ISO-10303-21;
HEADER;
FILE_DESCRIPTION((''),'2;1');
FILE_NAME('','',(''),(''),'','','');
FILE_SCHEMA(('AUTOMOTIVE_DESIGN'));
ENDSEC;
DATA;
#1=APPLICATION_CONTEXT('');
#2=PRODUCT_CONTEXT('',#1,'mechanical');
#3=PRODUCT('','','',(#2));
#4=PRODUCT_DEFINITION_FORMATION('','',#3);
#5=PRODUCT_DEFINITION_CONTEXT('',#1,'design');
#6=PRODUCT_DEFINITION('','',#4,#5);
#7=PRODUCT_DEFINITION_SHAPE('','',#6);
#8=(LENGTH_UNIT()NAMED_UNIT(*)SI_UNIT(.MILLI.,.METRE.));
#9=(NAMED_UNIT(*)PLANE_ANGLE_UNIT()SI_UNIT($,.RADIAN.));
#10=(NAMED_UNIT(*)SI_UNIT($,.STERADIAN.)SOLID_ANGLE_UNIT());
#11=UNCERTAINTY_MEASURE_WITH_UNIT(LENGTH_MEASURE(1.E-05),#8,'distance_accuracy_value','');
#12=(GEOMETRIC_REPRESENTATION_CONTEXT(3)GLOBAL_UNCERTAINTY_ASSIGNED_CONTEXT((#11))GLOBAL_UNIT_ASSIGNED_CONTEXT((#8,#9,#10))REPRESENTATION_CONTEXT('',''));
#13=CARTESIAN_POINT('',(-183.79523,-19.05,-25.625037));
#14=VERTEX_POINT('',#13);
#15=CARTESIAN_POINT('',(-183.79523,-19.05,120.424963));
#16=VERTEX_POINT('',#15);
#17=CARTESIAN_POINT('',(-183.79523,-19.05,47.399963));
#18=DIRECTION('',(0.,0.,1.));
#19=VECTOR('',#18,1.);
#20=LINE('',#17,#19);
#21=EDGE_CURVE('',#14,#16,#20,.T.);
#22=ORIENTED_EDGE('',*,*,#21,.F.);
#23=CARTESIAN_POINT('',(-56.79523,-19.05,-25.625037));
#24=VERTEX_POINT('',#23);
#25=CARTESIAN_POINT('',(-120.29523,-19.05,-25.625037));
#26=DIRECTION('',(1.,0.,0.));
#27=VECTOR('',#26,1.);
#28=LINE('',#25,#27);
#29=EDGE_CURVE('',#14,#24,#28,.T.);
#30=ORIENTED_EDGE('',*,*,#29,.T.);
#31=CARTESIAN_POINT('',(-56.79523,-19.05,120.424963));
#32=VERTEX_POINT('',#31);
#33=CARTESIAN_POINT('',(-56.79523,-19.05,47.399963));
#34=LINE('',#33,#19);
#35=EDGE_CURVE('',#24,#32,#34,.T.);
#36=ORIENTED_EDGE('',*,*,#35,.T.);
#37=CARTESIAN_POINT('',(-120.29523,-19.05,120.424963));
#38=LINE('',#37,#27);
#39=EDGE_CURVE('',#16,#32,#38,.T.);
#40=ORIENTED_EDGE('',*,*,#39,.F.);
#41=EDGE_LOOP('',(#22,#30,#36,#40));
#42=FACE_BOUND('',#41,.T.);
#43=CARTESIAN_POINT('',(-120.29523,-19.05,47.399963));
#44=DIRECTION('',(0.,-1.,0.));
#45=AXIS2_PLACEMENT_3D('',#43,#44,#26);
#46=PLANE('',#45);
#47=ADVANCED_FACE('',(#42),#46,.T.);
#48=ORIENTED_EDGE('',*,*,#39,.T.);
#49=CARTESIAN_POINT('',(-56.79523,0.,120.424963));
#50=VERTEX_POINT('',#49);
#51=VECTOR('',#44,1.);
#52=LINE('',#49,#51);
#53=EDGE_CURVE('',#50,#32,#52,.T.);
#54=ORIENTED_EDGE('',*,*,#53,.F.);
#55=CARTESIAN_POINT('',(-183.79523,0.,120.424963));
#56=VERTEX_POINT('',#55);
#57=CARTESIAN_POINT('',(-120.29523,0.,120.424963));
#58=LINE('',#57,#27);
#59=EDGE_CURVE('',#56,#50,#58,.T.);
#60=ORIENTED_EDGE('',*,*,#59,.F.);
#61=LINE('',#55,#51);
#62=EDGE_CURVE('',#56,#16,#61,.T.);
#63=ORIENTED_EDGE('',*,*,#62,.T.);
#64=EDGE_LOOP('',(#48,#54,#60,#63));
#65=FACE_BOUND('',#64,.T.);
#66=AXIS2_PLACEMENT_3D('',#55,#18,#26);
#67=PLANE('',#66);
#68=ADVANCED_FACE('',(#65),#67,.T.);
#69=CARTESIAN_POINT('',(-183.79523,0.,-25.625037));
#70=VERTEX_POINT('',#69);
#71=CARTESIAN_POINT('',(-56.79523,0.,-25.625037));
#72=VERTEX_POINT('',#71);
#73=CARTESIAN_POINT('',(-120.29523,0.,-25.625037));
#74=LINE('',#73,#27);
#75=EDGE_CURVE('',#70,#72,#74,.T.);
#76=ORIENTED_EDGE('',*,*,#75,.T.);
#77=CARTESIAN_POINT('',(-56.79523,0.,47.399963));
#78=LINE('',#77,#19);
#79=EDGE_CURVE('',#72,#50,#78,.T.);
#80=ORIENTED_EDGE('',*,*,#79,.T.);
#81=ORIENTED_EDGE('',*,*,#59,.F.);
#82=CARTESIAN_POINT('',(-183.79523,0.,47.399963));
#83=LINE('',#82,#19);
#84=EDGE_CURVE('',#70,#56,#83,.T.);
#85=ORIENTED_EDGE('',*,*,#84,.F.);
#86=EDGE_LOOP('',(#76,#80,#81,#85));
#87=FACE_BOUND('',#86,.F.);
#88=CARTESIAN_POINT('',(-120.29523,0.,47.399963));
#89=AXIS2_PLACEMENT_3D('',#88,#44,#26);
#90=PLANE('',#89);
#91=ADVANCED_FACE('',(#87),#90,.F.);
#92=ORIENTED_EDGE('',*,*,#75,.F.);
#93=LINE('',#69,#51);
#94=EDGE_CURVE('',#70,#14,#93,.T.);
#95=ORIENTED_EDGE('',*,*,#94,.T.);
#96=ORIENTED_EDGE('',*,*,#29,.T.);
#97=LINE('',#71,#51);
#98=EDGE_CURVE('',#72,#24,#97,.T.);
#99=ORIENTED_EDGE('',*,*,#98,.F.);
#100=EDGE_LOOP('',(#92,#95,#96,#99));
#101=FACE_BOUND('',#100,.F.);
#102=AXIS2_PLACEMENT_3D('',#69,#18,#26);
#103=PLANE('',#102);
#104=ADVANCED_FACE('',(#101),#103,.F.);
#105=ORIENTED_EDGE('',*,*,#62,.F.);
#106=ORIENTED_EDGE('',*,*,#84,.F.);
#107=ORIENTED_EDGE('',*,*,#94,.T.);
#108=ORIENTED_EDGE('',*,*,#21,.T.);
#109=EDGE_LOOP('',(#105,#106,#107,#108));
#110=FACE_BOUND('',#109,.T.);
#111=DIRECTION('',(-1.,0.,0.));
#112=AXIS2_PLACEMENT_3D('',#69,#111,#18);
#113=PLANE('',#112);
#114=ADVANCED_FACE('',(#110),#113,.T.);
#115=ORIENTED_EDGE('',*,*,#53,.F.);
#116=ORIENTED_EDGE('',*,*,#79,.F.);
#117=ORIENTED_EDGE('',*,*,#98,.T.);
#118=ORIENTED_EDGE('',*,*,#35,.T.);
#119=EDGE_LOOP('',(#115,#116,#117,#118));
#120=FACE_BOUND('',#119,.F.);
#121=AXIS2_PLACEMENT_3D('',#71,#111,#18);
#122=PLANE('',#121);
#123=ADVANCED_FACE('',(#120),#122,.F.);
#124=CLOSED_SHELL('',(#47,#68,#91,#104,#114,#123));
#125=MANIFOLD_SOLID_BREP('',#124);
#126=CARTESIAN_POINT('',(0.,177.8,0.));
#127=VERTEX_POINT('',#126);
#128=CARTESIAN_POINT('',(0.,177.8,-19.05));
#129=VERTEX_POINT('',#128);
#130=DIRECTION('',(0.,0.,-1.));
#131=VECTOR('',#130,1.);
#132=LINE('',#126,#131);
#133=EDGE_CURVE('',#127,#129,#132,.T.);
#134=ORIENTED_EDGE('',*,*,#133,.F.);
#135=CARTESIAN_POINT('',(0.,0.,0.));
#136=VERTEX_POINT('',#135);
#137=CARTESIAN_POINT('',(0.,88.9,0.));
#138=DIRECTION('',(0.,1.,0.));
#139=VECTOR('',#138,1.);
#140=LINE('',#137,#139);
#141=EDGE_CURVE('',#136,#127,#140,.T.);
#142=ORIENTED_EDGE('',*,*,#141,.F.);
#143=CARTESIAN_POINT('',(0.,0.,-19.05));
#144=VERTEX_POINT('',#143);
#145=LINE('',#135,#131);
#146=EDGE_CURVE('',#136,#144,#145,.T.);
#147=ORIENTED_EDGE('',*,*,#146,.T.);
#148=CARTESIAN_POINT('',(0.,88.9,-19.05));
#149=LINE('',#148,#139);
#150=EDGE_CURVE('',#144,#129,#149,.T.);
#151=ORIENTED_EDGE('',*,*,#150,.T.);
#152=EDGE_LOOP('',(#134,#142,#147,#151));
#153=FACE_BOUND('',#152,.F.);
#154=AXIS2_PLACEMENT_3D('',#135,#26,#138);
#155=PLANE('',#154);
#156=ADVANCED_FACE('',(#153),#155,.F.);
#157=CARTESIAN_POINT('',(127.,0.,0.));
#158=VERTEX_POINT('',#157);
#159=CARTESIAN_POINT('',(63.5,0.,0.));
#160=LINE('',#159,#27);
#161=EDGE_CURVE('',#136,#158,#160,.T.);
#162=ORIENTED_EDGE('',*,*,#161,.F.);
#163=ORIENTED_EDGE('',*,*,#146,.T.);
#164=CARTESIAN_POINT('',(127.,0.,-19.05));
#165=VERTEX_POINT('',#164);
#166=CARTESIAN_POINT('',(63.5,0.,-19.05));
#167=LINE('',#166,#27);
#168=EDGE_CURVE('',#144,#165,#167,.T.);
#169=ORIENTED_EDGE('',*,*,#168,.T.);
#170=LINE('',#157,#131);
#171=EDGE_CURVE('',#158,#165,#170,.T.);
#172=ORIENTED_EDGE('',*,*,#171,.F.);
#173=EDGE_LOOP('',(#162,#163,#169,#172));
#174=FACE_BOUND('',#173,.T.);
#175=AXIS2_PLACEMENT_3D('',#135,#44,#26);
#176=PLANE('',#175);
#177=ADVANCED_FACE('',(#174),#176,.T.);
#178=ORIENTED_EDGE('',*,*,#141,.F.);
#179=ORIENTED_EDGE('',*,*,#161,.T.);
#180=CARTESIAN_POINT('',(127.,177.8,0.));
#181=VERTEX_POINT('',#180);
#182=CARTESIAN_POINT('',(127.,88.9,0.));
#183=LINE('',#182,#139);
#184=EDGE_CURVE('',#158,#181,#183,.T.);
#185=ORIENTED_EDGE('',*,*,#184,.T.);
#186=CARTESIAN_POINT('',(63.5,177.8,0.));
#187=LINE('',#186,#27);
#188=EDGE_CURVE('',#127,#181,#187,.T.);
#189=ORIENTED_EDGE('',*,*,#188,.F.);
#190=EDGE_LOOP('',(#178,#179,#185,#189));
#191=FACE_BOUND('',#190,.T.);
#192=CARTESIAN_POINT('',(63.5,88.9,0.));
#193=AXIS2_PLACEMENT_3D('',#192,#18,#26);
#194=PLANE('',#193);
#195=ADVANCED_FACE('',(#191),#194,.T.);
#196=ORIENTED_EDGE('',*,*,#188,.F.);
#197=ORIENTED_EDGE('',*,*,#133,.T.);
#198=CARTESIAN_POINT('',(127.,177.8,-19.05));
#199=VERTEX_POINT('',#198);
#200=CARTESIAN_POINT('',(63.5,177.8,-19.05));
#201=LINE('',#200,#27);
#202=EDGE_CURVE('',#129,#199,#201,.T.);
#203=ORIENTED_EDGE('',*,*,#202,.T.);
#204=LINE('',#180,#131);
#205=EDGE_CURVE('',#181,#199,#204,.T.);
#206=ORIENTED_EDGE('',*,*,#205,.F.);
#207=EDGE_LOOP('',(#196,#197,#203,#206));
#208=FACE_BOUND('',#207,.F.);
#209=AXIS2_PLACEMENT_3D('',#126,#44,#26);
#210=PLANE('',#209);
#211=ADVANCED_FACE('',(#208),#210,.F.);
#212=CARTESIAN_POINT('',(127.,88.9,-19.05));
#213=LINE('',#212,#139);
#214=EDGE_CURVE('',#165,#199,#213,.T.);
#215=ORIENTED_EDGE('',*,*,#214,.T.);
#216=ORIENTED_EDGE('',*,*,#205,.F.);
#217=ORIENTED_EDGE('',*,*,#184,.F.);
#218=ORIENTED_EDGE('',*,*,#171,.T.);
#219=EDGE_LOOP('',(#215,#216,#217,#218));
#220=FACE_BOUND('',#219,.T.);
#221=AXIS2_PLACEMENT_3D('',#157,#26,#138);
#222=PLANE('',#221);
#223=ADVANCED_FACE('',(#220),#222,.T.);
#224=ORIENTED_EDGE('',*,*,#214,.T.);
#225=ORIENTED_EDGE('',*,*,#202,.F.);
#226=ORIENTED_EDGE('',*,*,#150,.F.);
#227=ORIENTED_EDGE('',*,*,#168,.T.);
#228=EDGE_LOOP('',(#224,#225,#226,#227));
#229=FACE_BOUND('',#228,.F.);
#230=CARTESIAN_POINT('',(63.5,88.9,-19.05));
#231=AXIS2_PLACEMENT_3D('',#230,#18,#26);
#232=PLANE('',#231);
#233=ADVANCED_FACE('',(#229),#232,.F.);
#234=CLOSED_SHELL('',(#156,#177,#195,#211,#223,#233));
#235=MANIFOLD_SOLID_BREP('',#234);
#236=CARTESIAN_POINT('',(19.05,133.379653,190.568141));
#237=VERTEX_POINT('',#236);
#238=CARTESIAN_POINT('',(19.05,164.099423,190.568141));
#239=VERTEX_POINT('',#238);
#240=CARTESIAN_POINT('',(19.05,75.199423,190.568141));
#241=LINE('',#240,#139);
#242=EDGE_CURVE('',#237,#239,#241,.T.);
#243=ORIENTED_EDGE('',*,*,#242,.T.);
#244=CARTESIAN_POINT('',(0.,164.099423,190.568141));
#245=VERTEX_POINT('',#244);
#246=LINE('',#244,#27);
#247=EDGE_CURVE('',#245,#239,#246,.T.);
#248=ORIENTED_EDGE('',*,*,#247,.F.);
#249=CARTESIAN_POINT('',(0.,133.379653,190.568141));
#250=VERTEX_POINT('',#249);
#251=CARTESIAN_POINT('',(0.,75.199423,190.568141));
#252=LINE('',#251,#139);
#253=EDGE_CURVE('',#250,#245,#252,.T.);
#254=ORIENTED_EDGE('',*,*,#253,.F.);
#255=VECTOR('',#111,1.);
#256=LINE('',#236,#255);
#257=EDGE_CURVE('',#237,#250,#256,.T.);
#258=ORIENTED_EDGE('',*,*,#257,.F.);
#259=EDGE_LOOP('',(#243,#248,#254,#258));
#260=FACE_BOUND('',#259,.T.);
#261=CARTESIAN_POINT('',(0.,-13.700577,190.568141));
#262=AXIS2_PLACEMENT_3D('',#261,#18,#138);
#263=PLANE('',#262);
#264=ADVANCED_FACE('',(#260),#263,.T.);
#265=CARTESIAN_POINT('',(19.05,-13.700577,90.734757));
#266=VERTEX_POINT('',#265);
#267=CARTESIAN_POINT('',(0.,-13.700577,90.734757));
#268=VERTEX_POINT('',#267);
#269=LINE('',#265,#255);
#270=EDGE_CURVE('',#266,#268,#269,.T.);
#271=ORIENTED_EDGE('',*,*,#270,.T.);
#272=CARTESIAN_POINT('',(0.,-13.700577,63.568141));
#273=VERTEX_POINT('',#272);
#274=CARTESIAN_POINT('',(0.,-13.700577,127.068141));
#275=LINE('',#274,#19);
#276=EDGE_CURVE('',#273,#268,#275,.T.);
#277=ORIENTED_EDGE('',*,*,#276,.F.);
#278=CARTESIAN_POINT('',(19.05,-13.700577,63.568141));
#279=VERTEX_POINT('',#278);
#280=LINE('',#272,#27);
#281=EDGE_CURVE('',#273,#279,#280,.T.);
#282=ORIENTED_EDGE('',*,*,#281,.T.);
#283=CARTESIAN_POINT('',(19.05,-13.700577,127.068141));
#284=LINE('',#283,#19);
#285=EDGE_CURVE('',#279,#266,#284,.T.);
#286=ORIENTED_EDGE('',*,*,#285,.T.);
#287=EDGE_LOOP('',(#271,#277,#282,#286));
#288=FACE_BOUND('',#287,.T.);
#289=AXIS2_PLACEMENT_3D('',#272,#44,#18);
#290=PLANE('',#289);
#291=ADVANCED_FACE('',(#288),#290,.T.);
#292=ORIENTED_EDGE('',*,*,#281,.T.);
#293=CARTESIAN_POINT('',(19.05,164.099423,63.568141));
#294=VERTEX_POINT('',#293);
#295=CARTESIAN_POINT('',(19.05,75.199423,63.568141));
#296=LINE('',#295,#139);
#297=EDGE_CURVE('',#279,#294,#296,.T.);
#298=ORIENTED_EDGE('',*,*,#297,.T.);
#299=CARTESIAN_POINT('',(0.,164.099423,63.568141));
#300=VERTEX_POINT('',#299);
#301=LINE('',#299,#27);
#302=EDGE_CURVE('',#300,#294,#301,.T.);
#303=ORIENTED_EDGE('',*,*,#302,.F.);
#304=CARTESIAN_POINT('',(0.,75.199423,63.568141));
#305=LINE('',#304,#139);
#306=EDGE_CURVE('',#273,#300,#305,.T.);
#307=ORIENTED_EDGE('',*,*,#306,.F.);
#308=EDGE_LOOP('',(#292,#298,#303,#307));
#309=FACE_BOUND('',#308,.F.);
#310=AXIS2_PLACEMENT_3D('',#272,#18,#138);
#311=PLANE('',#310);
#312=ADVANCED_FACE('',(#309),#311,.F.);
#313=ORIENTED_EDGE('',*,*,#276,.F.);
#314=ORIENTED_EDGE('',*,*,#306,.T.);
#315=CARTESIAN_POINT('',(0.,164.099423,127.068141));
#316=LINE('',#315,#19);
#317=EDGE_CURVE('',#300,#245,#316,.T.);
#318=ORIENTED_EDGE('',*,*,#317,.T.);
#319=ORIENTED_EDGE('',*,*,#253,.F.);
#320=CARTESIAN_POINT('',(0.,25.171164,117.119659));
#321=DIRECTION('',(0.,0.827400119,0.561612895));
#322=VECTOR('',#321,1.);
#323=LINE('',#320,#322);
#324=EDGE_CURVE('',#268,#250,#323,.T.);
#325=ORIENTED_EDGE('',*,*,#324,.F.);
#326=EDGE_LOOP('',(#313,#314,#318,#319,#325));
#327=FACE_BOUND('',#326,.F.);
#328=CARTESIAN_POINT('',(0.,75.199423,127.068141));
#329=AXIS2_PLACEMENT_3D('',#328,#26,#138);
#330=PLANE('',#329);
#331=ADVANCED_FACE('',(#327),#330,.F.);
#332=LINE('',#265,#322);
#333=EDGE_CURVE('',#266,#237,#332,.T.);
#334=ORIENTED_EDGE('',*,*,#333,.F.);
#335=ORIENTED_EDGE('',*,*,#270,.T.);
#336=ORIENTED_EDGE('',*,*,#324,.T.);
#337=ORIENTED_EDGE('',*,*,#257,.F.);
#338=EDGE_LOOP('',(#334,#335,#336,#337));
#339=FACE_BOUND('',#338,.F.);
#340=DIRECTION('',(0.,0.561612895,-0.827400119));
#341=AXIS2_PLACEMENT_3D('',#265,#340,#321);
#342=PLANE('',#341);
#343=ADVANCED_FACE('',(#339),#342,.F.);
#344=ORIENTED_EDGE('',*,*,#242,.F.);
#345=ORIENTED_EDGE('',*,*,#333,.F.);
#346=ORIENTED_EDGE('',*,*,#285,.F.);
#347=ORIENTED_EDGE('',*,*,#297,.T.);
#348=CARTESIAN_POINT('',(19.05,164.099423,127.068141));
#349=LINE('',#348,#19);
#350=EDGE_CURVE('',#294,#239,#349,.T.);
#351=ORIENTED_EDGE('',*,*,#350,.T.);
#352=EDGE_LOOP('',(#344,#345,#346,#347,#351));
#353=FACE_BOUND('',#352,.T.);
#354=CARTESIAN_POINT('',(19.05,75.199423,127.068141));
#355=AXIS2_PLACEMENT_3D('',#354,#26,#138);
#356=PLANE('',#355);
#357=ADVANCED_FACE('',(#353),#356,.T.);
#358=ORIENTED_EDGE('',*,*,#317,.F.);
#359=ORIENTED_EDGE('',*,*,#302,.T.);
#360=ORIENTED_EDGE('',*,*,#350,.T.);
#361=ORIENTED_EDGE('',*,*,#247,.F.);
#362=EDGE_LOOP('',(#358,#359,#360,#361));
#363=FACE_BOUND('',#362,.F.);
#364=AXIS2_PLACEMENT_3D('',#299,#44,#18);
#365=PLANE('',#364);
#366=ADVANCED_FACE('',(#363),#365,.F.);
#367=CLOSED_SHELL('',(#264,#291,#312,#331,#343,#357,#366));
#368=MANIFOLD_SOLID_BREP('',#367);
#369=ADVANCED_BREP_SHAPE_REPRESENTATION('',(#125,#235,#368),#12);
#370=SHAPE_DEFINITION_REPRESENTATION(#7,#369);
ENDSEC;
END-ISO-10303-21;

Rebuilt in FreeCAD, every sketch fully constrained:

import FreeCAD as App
import Part
import Sketcher
from FreeCAD import Vector
Q = App.Units.Quantity


def add_polygon(sketch, points):
    """Adds a closed chain of lines whose ends are joined by coincident constraints."""
    first, n = sketch.GeometryCount, len(points)
    for a, b in zip(points, points[1:] + points[:1]):
        sketch.addGeometry(Part.LineSegment(App.Vector(*a, 0), App.Vector(*b, 0)), False)
    for i in range(n):
        sketch.addConstraint(Sketcher.Constraint("Coincident", first + i, 2, first + (i + 1) % n, 1))

doc = App.newDocument("Part")
params = doc.addObject("Spreadsheet::Sheet", "Params")
for row, (alias, value) in enumerate([
    ("sketch1_width", "5 in"),
    ("sketch1_height", "7 in"),
    ("pad1_length", "0.75 in"),
    ("sketch2_width", "7 in"),
    ("sketch2_height", "5 in"),
    ("pad2_length", "0.75 in"),
    ("pocket1_length", "1 in"),
    ("pocket2_length", "1 in"),
    ("sketch5_width", "5 in"),
    ("sketch5_height", "5.75 in"),
    ("pad3_length", "0.75 in"),
], start=1):
    params.set(f"A{row}", alias)
    params.set(f"B{row}", "=" + value)
    params.setAlias(f"B{row}", alias)

body = doc.addObject("PartDesign::Body", "Body")

# Sketch on XY plane
sketch1 = body.newObject("Sketcher::SketchObject", "Sketch")
sketch1.AttachmentSupport = (doc.getObject("XY_Plane"), [""])
sketch1.MapMode = "FlatFace"
add_polygon(sketch1, [(0, 178), (0, 0), (127, 0), (127, 178)])  # lines 0-3
sketch1.addConstraint([
    Sketcher.Constraint("Vertical", 0),
    Sketcher.Constraint("Horizontal", 1),
    Sketcher.Constraint("Vertical", 2),
    Sketcher.Constraint("Horizontal", 3),
    Sketcher.Constraint("Coincident", 0, 2, -1, 1),
    Sketcher.Constraint("DistanceX", 1, 1, 1, 2, Q("5 in")),
    Sketcher.Constraint("DistanceY", 0, 2, 0, 1, Q("7 in")),
])
sketch1.setExpression("Constraints[9]", "Params.sketch1_width")
sketch1.setExpression("Constraints[10]", "Params.sketch1_height")
pad1 = body.newObject("PartDesign::Pad", "Pad")
pad1.Profile = sketch1
pad1.setExpression("Length", "Params.pad1_length")
pad1.Reversed = True
body2 = doc.addObject("PartDesign::Body", "Body001")

# Sketch on YZ plane
sketch2 = body2.newObject("Sketcher::SketchObject", "Sketch001")
sketch2.AttachmentSupport = (doc.getObject("YZ_Plane001"), [""])
sketch2.MapMode = "FlatFace"
add_polygon(sketch2, [(-14, 191), (-14, 64), (164, 64), (164, 191)])  # lines 0-3
sketch2.addConstraint([
    Sketcher.Constraint("Vertical", 0),
    Sketcher.Constraint("Horizontal", 1),
    Sketcher.Constraint("Vertical", 2),
    Sketcher.Constraint("Horizontal", 3),
    Sketcher.Constraint("DistanceX", 1, 1, 1, 2, Q("7 in")),
    Sketcher.Constraint("DistanceY", 0, 2, 0, 1, Q("5 in")),
    Sketcher.Constraint("DistanceY", -1, 1, 0, 2, 63.568141),
    Sketcher.Constraint("DistanceX", 0, 2, -1, 1, 13.700577),
])
sketch2.setExpression("Constraints[8]", "Params.sketch2_width")
sketch2.setExpression("Constraints[9]", "Params.sketch2_height")
pad2 = body2.newObject("PartDesign::Pad", "Pad001")
pad2.Profile = sketch2
pad2.setExpression("Length", "Params.pad2_length")

# Sketch on YZ plane
sketch3 = body2.newObject("Sketcher::SketchObject", "Sketch002")
sketch3.AttachmentSupport = (doc.getObject("YZ_Plane001"), [""])
sketch3.MapMode = "FlatFace"
sketch3.AttachmentOffset = App.Placement(Vector(0, 0, 0.75 * 25.4), App.Rotation())
add_polygon(sketch3, [(-14, 124), (87, 191), (-14, 191)])  # lines 0-2
sketch3.addConstraint([
    Sketcher.Constraint("Horizontal", 1),
    Sketcher.Constraint("Vertical", 2),
    Sketcher.Constraint("DistanceY", 2, 2, 2, 1, 66.39295),
    Sketcher.Constraint("DistanceX", 1, 2, 1, 1, 100.398148),
    Sketcher.Constraint("DistanceX", -1, 1, 0, 2, 86.697571),
    Sketcher.Constraint("DistanceY", -1, 1, 0, 2, 190.568141),
])
pocket1 = body2.newObject("PartDesign::Pocket", "Pocket")
pocket1.Profile = sketch3
pocket1.setExpression("Length", "Params.pocket1_length")

# Sketch on YZ plane
sketch4 = body2.newObject("Sketcher::SketchObject", "Sketch003")
sketch4.AttachmentSupport = (doc.getObject("YZ_Plane001"), [""])
sketch4.MapMode = "FlatFace"
sketch4.AttachmentOffset = App.Placement(Vector(0, 0, 0.75 * 25.4), App.Rotation())
add_polygon(sketch4, [(-14, 91), (133, 191), (87, 191), (-14, 124)])  # lines 0-3
sketch4.addConstraint([
    Sketcher.Constraint("Horizontal", 1),
    Sketcher.Constraint("Vertical", 3),
    Sketcher.Constraint("DistanceX", 1, 2, 1, 1, 46.682082),
    Sketcher.Constraint("DistanceY", 3, 2, 3, 1, 33.440434),
    Sketcher.Constraint("DistanceY", -1, 1, 0, 2, 190.568141),
    Sketcher.Constraint("DistanceX", -1, 1, 1, 2, 86.697571),
    Sketcher.Constraint("DistanceY", -1, 1, 2, 2, 124.175191),
    Sketcher.Constraint("DistanceX", 2, 2, 0, 2, 147.08023),
])
pocket2 = body2.newObject("PartDesign::Pocket", "Pocket001")
pocket2.Profile = sketch4
pocket2.setExpression("Length", "Params.pocket2_length")
body3 = doc.addObject("PartDesign::Body", "Body002")

# Sketch on XZ plane
sketch5 = body3.newObject("Sketcher::SketchObject", "Sketch004")
sketch5.AttachmentSupport = (doc.getObject("XZ_Plane002"), [""])
sketch5.MapMode = "FlatFace"
add_polygon(sketch5, [(-184, 120), (-184, -26), (-57, -26), (-57, 120)])  # lines 0-3
sketch5.addConstraint([
    Sketcher.Constraint("Vertical", 0),
    Sketcher.Constraint("Horizontal", 1),
    Sketcher.Constraint("Vertical", 2),
    Sketcher.Constraint("Horizontal", 3),
    Sketcher.Constraint("DistanceX", 1, 1, 1, 2, Q("5 in")),
    Sketcher.Constraint("DistanceY", 0, 2, 0, 1, Q("5.75 in")),
    Sketcher.Constraint("DistanceX", 0, 2, -1, 1, 183.79523),
    Sketcher.Constraint("DistanceY", 0, 2, -1, 1, 25.625037),
])
sketch5.setExpression("Constraints[8]", "Params.sketch5_width")
sketch5.setExpression("Constraints[9]", "Params.sketch5_height")
pad3 = body3.newObject("PartDesign::Pad", "Pad002")
pad3.Profile = sketch5
pad3.setExpression("Length", "Params.pad3_length")

doc.recompute()
